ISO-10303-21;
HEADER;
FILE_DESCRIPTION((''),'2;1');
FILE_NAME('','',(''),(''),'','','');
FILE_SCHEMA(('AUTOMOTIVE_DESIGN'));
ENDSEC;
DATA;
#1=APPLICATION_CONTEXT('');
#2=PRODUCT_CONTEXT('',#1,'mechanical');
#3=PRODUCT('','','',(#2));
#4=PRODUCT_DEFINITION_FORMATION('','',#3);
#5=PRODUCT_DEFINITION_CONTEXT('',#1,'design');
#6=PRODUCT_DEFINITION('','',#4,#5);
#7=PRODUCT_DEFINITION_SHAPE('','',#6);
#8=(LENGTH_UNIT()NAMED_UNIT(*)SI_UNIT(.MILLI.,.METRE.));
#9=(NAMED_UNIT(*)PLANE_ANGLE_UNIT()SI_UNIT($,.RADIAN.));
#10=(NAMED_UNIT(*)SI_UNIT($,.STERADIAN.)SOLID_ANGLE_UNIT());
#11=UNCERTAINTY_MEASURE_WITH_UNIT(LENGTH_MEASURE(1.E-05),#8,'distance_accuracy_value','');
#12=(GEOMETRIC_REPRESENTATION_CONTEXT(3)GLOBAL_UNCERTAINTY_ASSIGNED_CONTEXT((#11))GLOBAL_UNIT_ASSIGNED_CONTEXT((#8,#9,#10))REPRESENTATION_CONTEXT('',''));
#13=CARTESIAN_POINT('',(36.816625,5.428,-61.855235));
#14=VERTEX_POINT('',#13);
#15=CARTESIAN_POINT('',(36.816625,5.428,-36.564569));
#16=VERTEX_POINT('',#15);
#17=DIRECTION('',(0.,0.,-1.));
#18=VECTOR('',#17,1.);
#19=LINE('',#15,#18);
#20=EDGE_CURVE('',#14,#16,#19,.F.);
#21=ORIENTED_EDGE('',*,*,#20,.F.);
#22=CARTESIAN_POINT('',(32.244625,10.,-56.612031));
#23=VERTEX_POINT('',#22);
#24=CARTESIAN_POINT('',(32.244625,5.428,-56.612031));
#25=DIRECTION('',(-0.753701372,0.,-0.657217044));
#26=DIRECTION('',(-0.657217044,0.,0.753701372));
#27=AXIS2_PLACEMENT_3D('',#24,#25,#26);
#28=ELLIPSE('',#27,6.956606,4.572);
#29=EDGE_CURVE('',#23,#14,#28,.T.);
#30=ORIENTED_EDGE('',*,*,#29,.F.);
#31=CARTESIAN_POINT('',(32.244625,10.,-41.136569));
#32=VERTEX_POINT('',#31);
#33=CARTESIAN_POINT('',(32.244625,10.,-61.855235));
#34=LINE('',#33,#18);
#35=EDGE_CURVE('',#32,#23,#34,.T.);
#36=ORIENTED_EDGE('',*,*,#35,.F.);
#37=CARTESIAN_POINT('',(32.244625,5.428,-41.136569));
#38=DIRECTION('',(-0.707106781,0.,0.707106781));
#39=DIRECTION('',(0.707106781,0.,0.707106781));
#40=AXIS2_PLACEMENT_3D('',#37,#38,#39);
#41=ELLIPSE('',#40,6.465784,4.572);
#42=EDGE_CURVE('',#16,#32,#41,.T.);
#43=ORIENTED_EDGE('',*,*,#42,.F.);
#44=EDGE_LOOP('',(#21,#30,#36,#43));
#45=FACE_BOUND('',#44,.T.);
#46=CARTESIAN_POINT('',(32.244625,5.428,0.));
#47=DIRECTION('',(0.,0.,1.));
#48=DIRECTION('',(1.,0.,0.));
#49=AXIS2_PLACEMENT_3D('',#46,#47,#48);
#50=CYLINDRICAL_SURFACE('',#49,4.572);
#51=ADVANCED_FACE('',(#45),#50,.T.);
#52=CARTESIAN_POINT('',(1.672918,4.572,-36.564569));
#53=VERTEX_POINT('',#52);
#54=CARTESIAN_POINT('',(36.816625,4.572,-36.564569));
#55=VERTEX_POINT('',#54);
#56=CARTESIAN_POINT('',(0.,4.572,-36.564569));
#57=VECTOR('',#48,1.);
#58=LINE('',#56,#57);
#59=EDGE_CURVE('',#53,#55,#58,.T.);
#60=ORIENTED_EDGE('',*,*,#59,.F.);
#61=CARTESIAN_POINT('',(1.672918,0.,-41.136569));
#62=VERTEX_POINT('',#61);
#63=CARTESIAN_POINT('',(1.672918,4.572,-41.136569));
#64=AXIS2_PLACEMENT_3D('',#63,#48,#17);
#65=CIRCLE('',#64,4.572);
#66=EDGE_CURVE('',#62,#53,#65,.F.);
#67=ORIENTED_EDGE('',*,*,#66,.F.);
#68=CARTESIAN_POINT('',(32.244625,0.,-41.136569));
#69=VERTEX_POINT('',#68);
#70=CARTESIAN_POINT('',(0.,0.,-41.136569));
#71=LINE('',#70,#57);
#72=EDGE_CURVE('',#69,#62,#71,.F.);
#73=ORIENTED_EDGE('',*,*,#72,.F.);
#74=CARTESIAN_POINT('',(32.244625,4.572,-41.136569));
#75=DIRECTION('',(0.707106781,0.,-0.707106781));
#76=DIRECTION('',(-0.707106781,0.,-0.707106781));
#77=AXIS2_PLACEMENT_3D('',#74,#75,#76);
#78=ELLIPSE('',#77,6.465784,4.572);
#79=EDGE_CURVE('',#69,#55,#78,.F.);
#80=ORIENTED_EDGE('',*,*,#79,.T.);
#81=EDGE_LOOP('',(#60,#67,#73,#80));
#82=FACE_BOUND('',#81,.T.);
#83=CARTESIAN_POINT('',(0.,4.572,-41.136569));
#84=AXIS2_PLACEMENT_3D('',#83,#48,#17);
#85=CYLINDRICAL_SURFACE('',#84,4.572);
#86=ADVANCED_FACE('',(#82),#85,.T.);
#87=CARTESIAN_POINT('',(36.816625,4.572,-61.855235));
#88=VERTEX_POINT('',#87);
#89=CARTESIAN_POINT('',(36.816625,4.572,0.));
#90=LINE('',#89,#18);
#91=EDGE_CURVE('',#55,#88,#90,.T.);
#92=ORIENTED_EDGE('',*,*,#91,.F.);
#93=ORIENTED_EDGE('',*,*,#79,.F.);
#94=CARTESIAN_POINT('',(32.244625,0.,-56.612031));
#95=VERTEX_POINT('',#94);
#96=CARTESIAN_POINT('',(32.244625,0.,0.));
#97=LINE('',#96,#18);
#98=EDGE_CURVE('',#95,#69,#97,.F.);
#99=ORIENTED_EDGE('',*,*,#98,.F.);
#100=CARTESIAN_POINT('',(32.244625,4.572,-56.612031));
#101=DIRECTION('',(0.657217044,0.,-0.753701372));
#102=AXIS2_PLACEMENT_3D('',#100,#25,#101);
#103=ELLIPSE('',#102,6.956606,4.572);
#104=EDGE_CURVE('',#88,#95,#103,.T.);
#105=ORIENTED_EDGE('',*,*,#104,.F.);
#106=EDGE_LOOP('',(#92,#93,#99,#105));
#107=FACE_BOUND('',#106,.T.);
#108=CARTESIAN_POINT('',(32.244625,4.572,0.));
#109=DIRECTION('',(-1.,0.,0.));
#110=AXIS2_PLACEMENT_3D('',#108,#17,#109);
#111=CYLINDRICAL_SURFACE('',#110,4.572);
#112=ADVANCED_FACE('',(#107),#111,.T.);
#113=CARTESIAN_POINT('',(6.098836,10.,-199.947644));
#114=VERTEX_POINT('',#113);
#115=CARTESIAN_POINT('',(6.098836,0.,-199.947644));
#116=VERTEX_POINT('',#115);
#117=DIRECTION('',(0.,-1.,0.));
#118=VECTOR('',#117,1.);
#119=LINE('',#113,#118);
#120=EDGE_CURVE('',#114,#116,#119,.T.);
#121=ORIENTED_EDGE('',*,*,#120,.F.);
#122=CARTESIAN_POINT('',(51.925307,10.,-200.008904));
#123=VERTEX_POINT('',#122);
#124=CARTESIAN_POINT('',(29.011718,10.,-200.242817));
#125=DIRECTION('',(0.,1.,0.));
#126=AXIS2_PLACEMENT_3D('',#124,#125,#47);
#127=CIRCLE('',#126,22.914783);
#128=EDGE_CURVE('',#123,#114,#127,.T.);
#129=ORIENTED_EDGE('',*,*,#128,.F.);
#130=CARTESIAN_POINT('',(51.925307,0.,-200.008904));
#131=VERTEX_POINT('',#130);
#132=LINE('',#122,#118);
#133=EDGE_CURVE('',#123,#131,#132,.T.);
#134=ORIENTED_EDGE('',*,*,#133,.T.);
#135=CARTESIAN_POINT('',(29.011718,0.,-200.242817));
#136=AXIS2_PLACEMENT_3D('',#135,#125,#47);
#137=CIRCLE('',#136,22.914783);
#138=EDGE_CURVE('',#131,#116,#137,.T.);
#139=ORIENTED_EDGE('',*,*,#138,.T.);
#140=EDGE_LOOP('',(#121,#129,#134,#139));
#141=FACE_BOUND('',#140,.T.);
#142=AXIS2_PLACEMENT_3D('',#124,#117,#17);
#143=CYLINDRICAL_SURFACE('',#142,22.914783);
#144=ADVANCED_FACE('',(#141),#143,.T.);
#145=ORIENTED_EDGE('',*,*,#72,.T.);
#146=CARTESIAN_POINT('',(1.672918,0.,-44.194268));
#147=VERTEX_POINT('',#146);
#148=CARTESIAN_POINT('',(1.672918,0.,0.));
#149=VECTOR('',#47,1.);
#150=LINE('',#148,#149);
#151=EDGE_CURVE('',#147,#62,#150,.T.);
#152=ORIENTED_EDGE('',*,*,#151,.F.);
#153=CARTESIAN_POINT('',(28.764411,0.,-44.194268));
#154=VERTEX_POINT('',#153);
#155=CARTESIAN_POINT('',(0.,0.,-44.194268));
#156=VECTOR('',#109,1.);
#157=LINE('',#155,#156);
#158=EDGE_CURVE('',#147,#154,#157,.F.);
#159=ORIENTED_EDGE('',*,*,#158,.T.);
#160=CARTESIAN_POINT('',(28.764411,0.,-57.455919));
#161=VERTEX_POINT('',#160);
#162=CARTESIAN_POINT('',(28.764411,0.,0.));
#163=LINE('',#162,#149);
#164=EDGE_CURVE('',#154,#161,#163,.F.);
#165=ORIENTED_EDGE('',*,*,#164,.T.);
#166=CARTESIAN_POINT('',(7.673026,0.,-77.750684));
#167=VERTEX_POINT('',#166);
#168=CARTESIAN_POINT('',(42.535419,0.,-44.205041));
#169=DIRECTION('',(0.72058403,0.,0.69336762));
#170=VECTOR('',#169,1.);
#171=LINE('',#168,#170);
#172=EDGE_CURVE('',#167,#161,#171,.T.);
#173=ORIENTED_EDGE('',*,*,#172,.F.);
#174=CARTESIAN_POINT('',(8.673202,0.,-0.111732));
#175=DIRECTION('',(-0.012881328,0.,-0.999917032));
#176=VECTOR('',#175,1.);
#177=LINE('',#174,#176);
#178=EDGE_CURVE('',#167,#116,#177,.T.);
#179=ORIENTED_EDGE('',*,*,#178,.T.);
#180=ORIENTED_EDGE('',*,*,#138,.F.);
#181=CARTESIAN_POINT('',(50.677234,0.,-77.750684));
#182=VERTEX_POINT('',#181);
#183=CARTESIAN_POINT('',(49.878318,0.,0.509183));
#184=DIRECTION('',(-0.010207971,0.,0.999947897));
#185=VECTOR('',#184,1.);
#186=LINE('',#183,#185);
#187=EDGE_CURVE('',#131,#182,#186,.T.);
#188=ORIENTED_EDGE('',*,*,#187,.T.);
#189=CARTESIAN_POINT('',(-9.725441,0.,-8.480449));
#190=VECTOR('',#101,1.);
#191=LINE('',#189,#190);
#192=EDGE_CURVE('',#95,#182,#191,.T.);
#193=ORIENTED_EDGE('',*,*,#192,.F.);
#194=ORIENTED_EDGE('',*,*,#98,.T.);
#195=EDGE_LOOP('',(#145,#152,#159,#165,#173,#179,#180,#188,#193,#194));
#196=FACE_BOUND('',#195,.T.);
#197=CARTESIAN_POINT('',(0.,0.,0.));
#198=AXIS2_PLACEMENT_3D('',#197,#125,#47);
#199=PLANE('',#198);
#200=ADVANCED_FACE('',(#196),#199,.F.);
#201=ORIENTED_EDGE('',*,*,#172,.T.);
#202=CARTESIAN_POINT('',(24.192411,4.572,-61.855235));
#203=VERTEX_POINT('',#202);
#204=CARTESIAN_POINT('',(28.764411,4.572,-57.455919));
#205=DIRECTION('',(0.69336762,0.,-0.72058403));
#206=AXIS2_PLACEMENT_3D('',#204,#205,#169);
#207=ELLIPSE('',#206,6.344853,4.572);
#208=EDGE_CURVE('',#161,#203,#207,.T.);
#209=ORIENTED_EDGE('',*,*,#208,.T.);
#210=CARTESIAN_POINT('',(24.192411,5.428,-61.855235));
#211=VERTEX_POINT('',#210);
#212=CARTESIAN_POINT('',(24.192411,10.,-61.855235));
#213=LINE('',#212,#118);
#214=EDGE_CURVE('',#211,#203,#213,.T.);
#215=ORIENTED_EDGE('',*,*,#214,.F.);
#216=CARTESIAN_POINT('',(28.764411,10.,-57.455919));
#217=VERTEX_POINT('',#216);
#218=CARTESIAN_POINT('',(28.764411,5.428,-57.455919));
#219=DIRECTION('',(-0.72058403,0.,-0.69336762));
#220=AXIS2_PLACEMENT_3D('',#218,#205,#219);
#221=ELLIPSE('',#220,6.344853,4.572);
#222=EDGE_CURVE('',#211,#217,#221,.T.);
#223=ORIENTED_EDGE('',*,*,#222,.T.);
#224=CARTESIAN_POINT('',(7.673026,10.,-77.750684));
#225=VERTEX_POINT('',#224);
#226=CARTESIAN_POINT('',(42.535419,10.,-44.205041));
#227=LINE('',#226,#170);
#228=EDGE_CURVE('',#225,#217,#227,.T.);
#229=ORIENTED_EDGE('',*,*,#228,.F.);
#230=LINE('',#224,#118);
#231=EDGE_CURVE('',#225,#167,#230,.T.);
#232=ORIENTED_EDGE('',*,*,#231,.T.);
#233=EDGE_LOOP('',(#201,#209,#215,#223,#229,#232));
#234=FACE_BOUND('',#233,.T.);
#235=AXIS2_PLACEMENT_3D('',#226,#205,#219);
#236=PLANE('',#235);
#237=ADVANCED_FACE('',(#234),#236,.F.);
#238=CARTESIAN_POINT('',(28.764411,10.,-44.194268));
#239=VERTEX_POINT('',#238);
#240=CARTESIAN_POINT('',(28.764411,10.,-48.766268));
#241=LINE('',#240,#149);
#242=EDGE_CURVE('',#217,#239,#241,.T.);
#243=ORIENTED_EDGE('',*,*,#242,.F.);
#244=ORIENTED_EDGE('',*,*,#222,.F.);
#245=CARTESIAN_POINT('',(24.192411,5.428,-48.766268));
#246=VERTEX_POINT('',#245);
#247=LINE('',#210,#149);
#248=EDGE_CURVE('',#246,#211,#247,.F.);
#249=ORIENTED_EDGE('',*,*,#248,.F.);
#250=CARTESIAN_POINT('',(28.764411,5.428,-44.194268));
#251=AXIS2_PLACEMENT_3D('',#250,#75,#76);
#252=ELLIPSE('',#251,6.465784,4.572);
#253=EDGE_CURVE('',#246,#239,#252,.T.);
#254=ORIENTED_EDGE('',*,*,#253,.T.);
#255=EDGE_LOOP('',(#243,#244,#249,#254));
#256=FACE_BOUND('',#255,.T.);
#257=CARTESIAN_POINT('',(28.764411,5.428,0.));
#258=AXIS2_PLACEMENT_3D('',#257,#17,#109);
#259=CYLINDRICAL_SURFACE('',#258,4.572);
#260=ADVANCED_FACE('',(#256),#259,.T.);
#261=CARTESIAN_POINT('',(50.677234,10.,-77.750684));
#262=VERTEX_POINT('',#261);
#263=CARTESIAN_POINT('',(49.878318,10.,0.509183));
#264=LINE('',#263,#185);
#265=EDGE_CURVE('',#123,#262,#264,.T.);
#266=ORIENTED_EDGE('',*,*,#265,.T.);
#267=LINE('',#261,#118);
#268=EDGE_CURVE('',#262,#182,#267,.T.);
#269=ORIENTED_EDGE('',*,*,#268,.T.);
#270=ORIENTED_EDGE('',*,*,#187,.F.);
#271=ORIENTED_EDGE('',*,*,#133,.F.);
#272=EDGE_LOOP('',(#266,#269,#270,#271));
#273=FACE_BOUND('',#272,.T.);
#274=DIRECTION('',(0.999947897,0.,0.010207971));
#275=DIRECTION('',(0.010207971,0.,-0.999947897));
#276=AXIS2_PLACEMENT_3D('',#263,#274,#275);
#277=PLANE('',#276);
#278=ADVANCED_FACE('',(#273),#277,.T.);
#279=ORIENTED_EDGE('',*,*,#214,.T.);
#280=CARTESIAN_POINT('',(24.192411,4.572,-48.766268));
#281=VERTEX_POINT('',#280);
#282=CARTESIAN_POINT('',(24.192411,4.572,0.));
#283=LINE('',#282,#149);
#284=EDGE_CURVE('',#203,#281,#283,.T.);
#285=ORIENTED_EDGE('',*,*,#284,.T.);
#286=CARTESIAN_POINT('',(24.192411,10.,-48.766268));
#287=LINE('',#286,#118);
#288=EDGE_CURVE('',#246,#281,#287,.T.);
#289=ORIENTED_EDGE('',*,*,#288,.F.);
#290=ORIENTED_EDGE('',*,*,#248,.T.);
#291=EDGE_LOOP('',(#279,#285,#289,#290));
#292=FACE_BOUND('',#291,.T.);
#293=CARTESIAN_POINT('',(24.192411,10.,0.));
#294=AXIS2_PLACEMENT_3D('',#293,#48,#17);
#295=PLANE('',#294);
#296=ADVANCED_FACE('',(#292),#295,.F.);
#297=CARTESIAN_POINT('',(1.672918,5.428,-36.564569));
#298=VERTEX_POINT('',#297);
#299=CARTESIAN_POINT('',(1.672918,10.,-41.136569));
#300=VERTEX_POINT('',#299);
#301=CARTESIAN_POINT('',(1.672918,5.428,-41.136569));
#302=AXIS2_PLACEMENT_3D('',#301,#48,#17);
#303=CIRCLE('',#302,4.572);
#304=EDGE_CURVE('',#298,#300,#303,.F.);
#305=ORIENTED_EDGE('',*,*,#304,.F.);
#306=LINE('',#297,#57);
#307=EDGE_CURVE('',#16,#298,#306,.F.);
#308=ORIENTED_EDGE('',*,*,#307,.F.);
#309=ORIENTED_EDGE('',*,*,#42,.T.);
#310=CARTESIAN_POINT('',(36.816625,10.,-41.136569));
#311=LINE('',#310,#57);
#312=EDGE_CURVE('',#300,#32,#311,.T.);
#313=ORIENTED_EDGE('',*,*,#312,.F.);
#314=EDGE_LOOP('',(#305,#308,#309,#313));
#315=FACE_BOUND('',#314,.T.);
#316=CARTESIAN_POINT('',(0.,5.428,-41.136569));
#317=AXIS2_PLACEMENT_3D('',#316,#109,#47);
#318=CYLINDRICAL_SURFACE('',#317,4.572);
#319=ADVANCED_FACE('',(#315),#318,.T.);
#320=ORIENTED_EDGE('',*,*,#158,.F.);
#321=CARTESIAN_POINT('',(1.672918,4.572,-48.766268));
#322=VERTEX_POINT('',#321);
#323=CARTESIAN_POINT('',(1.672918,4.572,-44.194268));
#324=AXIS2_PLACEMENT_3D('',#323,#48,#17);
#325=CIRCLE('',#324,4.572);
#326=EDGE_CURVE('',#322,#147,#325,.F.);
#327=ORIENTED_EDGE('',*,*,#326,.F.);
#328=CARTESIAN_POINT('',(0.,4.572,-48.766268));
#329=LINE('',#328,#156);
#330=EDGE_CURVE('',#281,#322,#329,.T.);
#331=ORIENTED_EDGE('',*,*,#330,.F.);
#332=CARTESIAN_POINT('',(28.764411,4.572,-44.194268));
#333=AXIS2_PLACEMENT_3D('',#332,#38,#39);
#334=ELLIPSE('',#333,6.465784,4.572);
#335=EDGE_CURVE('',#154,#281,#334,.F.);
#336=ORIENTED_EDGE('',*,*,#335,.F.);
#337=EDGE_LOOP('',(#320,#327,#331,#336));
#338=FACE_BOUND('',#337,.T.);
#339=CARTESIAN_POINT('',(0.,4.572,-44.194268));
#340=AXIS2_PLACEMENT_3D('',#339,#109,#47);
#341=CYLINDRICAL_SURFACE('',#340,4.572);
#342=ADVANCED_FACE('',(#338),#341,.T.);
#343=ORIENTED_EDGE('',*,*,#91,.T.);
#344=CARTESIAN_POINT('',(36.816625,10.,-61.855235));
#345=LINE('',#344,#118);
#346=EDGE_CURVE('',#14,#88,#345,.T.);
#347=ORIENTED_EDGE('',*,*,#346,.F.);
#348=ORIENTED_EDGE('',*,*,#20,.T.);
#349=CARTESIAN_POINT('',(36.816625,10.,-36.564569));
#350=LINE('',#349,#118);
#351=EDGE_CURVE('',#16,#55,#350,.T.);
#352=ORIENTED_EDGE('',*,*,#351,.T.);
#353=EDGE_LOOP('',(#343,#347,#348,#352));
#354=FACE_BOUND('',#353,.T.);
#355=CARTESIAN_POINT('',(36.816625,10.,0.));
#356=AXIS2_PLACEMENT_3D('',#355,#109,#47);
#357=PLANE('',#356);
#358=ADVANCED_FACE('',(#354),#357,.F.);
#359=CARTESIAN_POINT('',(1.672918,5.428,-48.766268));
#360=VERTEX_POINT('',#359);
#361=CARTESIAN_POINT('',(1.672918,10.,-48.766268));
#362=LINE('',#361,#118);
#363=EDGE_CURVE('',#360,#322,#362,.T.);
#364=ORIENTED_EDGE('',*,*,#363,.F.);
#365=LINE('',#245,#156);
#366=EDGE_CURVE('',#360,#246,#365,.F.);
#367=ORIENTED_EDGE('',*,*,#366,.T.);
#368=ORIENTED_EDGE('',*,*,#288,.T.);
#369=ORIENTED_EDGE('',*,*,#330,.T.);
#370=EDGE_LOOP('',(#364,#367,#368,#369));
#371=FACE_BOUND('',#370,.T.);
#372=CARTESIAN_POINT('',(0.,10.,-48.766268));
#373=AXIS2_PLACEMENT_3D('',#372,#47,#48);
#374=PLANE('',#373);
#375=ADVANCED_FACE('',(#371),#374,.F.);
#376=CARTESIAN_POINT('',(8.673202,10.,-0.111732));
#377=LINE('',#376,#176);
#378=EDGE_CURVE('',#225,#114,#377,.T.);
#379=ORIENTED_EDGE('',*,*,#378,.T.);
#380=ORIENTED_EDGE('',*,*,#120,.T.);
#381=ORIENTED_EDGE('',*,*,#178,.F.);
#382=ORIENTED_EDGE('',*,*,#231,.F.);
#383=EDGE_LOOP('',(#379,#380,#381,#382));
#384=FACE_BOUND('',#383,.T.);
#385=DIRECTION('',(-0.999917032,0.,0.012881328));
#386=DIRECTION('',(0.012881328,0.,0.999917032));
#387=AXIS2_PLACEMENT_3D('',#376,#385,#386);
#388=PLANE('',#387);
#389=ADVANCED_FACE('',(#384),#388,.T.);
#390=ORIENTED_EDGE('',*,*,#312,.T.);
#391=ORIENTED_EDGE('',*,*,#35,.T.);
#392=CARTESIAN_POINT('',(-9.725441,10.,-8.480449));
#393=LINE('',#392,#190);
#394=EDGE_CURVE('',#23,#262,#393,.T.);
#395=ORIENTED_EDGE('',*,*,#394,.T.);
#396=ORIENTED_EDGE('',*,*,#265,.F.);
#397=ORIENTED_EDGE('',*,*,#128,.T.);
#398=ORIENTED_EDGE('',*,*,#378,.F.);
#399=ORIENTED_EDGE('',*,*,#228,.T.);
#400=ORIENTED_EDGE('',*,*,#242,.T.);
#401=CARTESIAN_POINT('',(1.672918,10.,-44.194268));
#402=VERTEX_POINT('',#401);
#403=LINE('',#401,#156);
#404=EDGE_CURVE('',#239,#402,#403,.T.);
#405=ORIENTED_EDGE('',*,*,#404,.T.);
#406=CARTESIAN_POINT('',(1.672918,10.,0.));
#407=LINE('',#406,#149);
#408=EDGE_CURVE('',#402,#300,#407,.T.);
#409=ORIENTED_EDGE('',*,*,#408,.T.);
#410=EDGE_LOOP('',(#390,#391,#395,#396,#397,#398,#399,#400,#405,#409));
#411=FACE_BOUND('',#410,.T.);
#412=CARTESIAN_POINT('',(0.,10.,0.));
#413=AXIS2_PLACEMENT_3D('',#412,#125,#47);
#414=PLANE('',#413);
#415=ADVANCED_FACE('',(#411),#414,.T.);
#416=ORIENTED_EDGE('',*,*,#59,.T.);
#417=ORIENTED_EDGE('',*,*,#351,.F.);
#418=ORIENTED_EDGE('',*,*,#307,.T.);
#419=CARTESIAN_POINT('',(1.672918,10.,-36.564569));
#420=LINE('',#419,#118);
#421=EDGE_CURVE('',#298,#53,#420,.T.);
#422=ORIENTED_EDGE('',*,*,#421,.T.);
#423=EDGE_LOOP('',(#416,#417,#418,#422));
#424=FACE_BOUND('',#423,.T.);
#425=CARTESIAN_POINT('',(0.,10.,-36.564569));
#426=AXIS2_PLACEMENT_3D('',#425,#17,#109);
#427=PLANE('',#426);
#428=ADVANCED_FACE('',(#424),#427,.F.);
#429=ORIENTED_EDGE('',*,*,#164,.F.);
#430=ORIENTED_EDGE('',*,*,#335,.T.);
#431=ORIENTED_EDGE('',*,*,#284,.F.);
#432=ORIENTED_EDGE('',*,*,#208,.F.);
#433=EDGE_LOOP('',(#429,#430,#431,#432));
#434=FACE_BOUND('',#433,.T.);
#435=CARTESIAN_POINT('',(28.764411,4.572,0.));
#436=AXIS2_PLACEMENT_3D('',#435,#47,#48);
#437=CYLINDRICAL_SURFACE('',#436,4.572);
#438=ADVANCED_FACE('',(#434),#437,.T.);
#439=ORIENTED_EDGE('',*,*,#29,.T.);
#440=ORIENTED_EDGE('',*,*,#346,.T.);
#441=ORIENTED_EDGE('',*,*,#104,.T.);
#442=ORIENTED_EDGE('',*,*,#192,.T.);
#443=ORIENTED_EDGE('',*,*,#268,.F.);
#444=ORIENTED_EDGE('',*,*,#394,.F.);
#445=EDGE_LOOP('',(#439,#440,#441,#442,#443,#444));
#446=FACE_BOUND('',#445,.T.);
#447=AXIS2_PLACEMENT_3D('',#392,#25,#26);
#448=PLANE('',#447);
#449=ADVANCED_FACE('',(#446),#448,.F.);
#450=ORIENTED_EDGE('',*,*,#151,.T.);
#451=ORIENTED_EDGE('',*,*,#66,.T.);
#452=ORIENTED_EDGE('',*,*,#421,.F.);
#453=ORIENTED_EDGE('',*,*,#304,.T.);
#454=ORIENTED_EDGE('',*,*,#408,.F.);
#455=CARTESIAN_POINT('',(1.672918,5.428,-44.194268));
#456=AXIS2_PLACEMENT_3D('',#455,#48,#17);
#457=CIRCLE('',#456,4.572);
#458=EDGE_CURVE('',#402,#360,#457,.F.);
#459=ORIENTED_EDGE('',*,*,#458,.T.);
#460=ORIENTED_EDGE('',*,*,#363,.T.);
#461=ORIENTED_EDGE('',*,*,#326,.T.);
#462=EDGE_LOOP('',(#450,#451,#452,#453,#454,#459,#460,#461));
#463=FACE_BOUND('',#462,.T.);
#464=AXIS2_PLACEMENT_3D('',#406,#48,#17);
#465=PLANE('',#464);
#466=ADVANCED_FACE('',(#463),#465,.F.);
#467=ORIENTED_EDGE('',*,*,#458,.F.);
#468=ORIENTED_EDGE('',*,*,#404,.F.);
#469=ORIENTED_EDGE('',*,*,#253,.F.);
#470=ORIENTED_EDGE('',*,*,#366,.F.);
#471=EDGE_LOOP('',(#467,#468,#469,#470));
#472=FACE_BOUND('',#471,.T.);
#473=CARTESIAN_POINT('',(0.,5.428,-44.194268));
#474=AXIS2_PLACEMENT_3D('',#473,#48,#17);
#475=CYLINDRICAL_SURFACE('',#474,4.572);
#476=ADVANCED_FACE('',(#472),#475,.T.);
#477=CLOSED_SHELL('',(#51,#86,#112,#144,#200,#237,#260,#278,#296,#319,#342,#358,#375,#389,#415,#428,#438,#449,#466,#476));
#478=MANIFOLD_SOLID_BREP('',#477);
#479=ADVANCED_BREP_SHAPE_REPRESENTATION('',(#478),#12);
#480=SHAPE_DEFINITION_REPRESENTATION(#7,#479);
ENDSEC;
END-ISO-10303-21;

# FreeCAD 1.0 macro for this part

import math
import FreeCAD as App
import Part
import Sketcher

V = App.Vector
Q = App.Units.Quantity


def edges_at(feature, points):
    """Names of the edges that pass closest to the given points."""
    edges = feature.Shape.Edges
    near = lambda p: min(range(len(edges)), key=lambda i: edges[i].distToShape(Part.Vertex(*p))[0])
    return sorted({f"Edge{near(p) + 1}" for p in points})

doc = App.newDocument("Part")
body = doc.addObject("PartDesign::Body", "Body")

sketch1 = body.newObject("Sketcher::SketchObject", "Sketch")
sketch1.AttachmentSupport = (doc.getObject("XZ_Plane"), [""])
sketch1.MapMode = "FlatFace"
sketch1.addGeometry([
    Part.LineSegment(V(6, -200, 0), V(8, -78, 0)),
    Part.LineSegment(V(8, -78, 0), V(24, -62, 0)),
    Part.LineSegment(V(24, -62, 0), V(24, -49, 0)),
    Part.LineSegment(V(24, -49, 0), V(2, -49, 0)),
    Part.LineSegment(V(2, -49, 0), V(2, -37, 0)),
    Part.LineSegment(V(2, -37, 0), V(37, -37, 0)),
    Part.LineSegment(V(37, -37, 0), V(37, -62, 0)),
    Part.LineSegment(V(37, -62, 0), V(51, -78, 0)),
    Part.LineSegment(V(51, -78, 0), V(52, -200, 0)),
    Part.ArcOfCircle(Part.Circle(V(29, -200, 0), V(0, 0, 1), 23), math.radians(179), math.radians(361)),
], False)
sketch1.addConstraint([
    Sketcher.Constraint("Coincident", 0, 2, 1, 1),
    Sketcher.Constraint("Coincident", 1, 2, 2, 1),
    Sketcher.Constraint("Coincident", 2, 2, 3, 1),
    Sketcher.Constraint("Coincident", 3, 2, 4, 1),
    Sketcher.Constraint("Coincident", 4, 2, 5, 1),
    Sketcher.Constraint("Coincident", 5, 2, 6, 1),
    Sketcher.Constraint("Coincident", 6, 2, 7, 1),
    Sketcher.Constraint("Coincident", 7, 2, 8, 1),
    Sketcher.Constraint("Tangent", 8, 2, 9, 2),
    Sketcher.Constraint("Tangent", 9, 1, 0, 1),
    Sketcher.Constraint("Vertical", 2),
    Sketcher.Constraint("Horizontal", 3),
    Sketcher.Constraint("Vertical", 4),
    Sketcher.Constraint("Horizontal", 5),
    Sketcher.Constraint("Vertical", 6),
    Sketcher.Constraint("Horizontal", 1, 2, 6, 2),
    Sketcher.Constraint("Horizontal", 0, 2, 7, 2),
    Sketcher.Constraint("DistanceY", 4, 1, 4, 2, Q("12.201699 mm")),
    Sketcher.Constraint("Radius", 9, Q("22.914783 mm")),
    Sketcher.Constraint("Distance", 0, Q("122.2071 mm")),
    Sketcher.Constraint("DistanceX", 3, 2, 9, 3, Q("27.3388 mm")),
    Sketcher.Constraint("DistanceX", 0, 2, 5, 2, Q("29.143599 mm")),
    Sketcher.Constraint("Distance", 7, Q("21.089851 mm")),
    Sketcher.Constraint("Distance", 8, Q("122.26459 mm")),
    Sketcher.Constraint("DistanceX", 3, 2, 3, 1, Q("22.519493 mm")),
    Sketcher.Constraint("DistanceX", 5, 1, 5, 2, Q("35.143706 mm")),
    Sketcher.Constraint("DistanceY", 2, 1, 2, 2, Q("13.088967 mm")),
    Sketcher.Constraint("DistanceX", -1, 1, 9, 3, Q("29.011718 mm")),
    Sketcher.Constraint("DistanceY", 4, 2, -1, 1, Q("36.564569 mm")),
])
pad1 = body.newObject("PartDesign::Pad", "Pad")
pad1.Profile = sketch1
pad1.Length = 10
pad1.Reversed = True
doc.recompute()

fillet = body.newObject("PartDesign::Fillet", "Fillet")
fillet.Base = (pad1, edges_at(pad1, [
    (36.817, 0, -49.21),
    (19.245, 0, -36.565),
    (12.933, 0, -48.766),
    (24.192, 0, -55.311),
    (24.192, 10, -55.311),
    (12.933, 10, -48.766),
    (19.245, 10, -36.565),
    (36.817, 10, -49.21),
]))
fillet.Radius = 4.572

doc.recompute()
